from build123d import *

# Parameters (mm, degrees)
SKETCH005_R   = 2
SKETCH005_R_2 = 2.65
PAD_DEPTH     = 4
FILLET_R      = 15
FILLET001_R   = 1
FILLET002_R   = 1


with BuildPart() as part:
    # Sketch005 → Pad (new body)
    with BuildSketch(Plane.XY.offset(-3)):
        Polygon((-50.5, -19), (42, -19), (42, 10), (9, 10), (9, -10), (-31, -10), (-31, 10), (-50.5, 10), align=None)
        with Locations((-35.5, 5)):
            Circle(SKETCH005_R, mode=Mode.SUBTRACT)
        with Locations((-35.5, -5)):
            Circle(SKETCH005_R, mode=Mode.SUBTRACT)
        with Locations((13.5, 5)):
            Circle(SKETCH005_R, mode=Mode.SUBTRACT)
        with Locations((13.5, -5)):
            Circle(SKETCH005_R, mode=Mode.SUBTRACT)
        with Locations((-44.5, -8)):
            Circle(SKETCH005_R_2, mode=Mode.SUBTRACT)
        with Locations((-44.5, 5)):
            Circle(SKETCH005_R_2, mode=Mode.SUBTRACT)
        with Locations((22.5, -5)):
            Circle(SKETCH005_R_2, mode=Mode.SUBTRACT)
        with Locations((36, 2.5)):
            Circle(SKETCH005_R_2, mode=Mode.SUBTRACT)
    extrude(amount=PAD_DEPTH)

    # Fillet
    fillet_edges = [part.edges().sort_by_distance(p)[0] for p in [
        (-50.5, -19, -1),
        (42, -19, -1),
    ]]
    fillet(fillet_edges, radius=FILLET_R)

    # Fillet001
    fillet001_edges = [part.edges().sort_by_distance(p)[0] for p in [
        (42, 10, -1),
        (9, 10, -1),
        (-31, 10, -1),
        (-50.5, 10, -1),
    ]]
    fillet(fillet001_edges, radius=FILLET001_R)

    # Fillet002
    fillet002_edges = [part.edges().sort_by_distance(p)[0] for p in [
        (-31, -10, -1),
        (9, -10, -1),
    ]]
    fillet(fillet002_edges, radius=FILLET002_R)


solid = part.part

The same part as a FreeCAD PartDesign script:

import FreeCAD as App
import Part
import Sketcher

V = App.Vector


def edges_at(feature, points):
    """Names of the edges that pass closest to the given points."""
    edges = feature.Shape.Edges
    near = lambda p: min(range(len(edges)), key=lambda i: edges[i].distToShape(Part.Vertex(*p))[0])
    return sorted({f"Edge{near(p) + 1}" for p in points})

doc = App.newDocument("Part")
body = doc.addObject("PartDesign::Body", "Body")

sketch1 = doc.addObject("Sketcher::SketchObject", "Sketch")
body.addObject(sketch1)
sketch1.AttachmentSupport = (doc.XY_Plane, [""])
sketch1.MapMode = "FlatFace"
sketch1.AttachmentOffset = App.Placement(V(0, 0, -3), App.Rotation())
sketch1.addGeometry([
    Part.LineSegment(V(-50.5, -19, 0), V(42, -19, 0)),
    Part.LineSegment(V(42, -19, 0), V(42, 10, 0)),
    Part.LineSegment(V(42, 10, 0), V(9, 10, 0)),
    Part.LineSegment(V(9, 10, 0), V(9, -10, 0)),
    Part.LineSegment(V(9, -10, 0), V(-31, -10, 0)),
    Part.LineSegment(V(-31, -10, 0), V(-31, 10, 0)),
    Part.LineSegment(V(-31, 10, 0), V(-50.5, 10, 0)),
    Part.LineSegment(V(-50.5, 10, 0), V(-50.5, -19, 0)),
    Part.Circle(V(-44.5, -8, 0), V(0, 0, 1), 2.6),
    Part.Circle(V(-35.5, -5, 0), V(0, 0, 1), 2),
    Part.Circle(V(13.5, -5, 0), V(0, 0, 1), 2),
    Part.Circle(V(22.5, -5, 0), V(0, 0, 1), 2.6),
    Part.Circle(V(-44.5, 5, 0), V(0, 0, 1), 2.6),
    Part.Circle(V(-35.5, 5, 0), V(0, 0, 1), 2),
    Part.Circle(V(36, 2.5, 0), V(0, 0, 1), 2.6),
    Part.Circle(V(13.5, 5, 0), V(0, 0, 1), 2),
], False)
sketch1.addConstraint([
    Sketcher.Constraint("Coincident", 0, 2, 1, 1),
    Sketcher.Constraint("Coincident", 1, 2, 2, 1),
    Sketcher.Constraint("Coincident", 2, 2, 3, 1),
    Sketcher.Constraint("Coincident", 3, 2, 4, 1),
    Sketcher.Constraint("Coincident", 4, 2, 5, 1),
    Sketcher.Constraint("Coincident", 5, 2, 6, 1),
    Sketcher.Constraint("Coincident", 6, 2, 7, 1),
    Sketcher.Constraint("Coincident", 7, 2, 0, 1),
    Sketcher.Constraint("Horizontal", 0),
    Sketcher.Constraint("Vertical", 1),
    Sketcher.Constraint("Horizontal", 2),
    Sketcher.Constraint("Vertical", 3),
    Sketcher.Constraint("Horizontal", 4),
    Sketcher.Constraint("Vertical", 5),
    Sketcher.Constraint("Horizontal", 6),
    Sketcher.Constraint("Vertical", 7),
    Sketcher.Constraint("Equal", 9, 10),
    Sketcher.Constraint("Equal", 8, 11),
    Sketcher.Constraint("Equal", 11, 12),
    Sketcher.Constraint("Equal", 10, 13),
    Sketcher.Constraint("Equal", 12, 14),
    Sketcher.Constraint("Equal", 13, 15),
    Sketcher.Constraint("Symmetric", 9, 3, 13, 3, -1),
    Sketcher.Constraint("Symmetric", 10, 3, 15, 3, -1),
    Sketcher.Constraint("Horizontal", 9, 3, 10, 3),
    Sketcher.Constraint("Horizontal", 10, 3, 11, 3),
    Sketcher.Constraint("Horizontal", 12, 3, 13, 3),
    Sketcher.Constraint("Horizontal", 2, 2, 5, 2),
    Sketcher.Constraint("Vertical", 8, 3, 12, 3),
    Sketcher.Constraint("Diameter", 9, 4.0),
    Sketcher.Constraint("Diameter", 8, 5.3),
    Sketcher.Constraint("DistanceX", 2, 2, 2, 1, 33.0),
    Sketcher.Constraint("DistanceX", 4, 2, 4, 1, 40.0),
    Sketcher.Constraint("DistanceY", 1, 1, 1, 2, 29.0),
    Sketcher.Constraint("DistanceY", 3, 2, 3, 1, 20.0),
    Sketcher.Constraint("DistanceX", 0, 1, 0, 2, 92.5),
    Sketcher.Constraint("DistanceY", 8, 3, -1, 1, 8.0),
    Sketcher.Constraint("DistanceY", 9, 3, -1, 1, 5.0),
    Sketcher.Constraint("DistanceX", -1, 1, 14, 3, 36.0),
    Sketcher.Constraint("DistanceX", -1, 1, 0, 2, 42.0),
    Sketcher.Constraint("DistanceY", 0, 2, -1, 1, 19.0),
    Sketcher.Constraint("DistanceX", 8, 3, 9, 3, 9.0),
    Sketcher.Constraint("DistanceX", 9, 3, 10, 3, 49.0),
    Sketcher.Constraint("DistanceX", 10, 3, 11, 3, 9.0),
    Sketcher.Constraint("DistanceX", 6, 2, 12, 3, 6.0),
    Sketcher.Constraint("DistanceY", -1, 1, 14, 3, 2.5),
])
pad1 = doc.addObject("PartDesign::Pad", "Pad")
body.addObject(pad1)
pad1.Profile = sketch1
pad1.Length = 4
doc.recompute()

fillet = doc.addObject("PartDesign::Fillet", "Fillet")
body.addObject(fillet)
fillet.Base = (pad1, edges_at(pad1, [(-50.5, -19, -1), (42, -19, -1)]))
fillet.Radius = 15
doc.recompute()

fillet2 = doc.addObject("PartDesign::Fillet", "Fillet001")
body.addObject(fillet2)
fillet2.Base = (fillet, edges_at(fillet, [
    (42, 10, -1),
    (9, 10, -1),
    (-31, 10, -1),
    (-50.5, 10, -1),
]))
fillet2.Radius = 1
doc.recompute()

fillet3 = doc.addObject("PartDesign::Fillet", "Fillet002")
body.addObject(fillet3)
fillet3.Base = (fillet2, edges_at(fillet2, [(-31, -10, -1), (9, -10, -1)]))
fillet3.Radius = 1

doc.recompute()
